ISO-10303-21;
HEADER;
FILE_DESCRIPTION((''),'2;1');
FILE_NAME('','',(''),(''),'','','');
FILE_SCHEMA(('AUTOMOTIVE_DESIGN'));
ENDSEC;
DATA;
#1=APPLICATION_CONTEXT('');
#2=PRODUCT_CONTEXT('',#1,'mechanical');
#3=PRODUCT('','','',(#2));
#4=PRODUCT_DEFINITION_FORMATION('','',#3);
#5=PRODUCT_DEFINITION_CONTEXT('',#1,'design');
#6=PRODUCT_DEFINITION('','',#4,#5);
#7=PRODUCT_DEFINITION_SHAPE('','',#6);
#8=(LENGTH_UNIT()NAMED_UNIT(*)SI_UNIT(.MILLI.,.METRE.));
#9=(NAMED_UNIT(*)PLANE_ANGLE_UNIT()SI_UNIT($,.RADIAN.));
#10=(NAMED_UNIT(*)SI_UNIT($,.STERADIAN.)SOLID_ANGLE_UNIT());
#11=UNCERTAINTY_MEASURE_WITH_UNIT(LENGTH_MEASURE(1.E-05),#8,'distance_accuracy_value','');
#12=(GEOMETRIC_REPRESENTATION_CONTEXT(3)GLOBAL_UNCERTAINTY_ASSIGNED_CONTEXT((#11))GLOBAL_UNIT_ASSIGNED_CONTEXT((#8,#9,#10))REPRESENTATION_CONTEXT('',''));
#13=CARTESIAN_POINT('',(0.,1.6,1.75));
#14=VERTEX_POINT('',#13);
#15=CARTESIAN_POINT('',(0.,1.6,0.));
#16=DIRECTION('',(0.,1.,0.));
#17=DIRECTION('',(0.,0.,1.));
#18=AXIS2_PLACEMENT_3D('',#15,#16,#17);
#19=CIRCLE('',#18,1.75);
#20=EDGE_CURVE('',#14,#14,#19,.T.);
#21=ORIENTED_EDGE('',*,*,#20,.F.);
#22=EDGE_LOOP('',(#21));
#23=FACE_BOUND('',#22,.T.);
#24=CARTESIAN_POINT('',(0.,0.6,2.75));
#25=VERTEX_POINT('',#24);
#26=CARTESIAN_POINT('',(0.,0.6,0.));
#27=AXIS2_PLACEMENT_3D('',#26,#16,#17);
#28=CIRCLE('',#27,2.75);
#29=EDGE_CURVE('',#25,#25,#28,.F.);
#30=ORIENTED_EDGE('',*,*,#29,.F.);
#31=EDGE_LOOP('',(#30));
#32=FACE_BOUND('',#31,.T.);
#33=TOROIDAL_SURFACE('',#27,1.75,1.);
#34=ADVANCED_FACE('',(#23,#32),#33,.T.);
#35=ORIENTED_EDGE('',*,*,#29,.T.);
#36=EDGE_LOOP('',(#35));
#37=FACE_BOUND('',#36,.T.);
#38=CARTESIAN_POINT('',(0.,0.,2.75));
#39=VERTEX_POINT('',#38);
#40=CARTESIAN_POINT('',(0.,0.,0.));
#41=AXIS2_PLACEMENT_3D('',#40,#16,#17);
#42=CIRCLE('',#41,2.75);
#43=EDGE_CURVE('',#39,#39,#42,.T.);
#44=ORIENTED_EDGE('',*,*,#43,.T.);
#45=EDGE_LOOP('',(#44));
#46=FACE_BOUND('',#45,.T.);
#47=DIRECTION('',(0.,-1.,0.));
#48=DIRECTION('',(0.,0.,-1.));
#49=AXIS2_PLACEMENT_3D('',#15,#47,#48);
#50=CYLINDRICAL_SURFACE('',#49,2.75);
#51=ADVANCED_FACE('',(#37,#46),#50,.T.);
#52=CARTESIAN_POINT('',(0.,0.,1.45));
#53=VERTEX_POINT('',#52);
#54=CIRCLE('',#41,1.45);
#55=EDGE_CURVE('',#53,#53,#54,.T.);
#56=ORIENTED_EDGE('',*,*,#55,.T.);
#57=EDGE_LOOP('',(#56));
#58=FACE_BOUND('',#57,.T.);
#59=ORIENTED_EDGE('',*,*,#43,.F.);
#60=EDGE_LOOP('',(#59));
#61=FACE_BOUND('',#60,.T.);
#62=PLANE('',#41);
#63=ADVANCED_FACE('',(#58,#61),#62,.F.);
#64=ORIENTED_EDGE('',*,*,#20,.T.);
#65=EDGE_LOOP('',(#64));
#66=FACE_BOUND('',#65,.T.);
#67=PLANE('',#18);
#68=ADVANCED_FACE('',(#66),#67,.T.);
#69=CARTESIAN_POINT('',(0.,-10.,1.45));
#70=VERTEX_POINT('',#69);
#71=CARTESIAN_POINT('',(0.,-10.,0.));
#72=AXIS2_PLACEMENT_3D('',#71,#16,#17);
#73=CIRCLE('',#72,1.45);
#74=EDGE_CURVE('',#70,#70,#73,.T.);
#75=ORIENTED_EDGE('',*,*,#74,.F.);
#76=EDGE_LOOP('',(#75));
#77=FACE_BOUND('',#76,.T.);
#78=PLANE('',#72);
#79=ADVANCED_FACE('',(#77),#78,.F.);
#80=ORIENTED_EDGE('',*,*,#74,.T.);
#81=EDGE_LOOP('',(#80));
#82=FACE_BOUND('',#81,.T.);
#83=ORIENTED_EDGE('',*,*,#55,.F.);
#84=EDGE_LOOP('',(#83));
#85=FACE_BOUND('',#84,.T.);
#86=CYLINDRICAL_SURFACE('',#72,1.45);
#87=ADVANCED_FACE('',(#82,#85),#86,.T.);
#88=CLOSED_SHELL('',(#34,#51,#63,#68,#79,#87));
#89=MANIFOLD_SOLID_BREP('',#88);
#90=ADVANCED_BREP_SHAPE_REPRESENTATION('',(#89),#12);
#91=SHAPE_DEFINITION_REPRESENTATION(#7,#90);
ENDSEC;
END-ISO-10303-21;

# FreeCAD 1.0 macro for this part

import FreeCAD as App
import Part
import Sketcher

V = App.Vector


def edges_at(feature, points):
    """Names of the edges that pass closest to the given points."""
    edges = feature.Shape.Edges
    near = lambda p: min(range(len(edges)), key=lambda i: edges[i].distToShape(Part.Vertex(*p))[0])
    return sorted({f"Edge{near(p) + 1}" for p in points})

doc = App.newDocument("Part")
body = doc.addObject("PartDesign::Body", "Body")

sketch1 = body.newObject("Sketcher::SketchObject", "Sketch")
sketch1.AttachmentSupport = (doc.getObject("XZ_Plane"), [""])
sketch1.MapMode = "FlatFace"
sketch1.addGeometry(Part.Circle(V(0, 0, 0), V(0, 0, 1), 1.4), False)
sketch1.addConstraint(Sketcher.Constraint("Coincident", 0, 3, -1, 1))
sketch1.addConstraint(Sketcher.Constraint("Diameter", 0, 2.9))
pad1 = body.newObject("PartDesign::Pad", "Pad")
pad1.Profile = sketch1
pad1.Length = 10

sketch2 = body.newObject("Sketcher::SketchObject", "Sketch001")
sketch2.AttachmentSupport = (doc.getObject("XZ_Plane"), [""])
sketch2.MapMode = "FlatFace"
sketch2.addGeometry(Part.Circle(V(0, 0, 0), V(0, 0, 1), 2.8), False)
sketch2.addConstraint(Sketcher.Constraint("Coincident", 0, 3, -1, 1))
sketch2.addConstraint(Sketcher.Constraint("Diameter", 0, 5.5))
pad2 = body.newObject("PartDesign::Pad", "Pad001")
pad2.Profile = sketch2
pad2.Length = 1.6
pad2.Reversed = True
doc.recompute()

fillet = body.newObject("PartDesign::Fillet", "Fillet")
fillet.Base = (pad2, edges_at(pad2, [(0, 1.6, -2.75)]))
fillet.Radius = 1

doc.recompute()
